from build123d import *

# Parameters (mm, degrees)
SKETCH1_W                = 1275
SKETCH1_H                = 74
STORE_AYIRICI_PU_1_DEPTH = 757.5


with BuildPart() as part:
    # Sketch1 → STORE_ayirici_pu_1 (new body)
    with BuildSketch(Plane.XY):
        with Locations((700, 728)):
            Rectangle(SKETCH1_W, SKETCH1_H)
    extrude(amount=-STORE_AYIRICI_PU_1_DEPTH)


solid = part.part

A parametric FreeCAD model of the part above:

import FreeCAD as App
import Part
import Sketcher

doc = App.newDocument("Part")
body = doc.addObject("PartDesign::Body", "Body")

# Sketch on XY plane
sketch1 = doc.addObject("Sketcher::SketchObject", "Sketch")
body.addObject(sketch1)
sketch1.AttachmentSupport = (doc.XY_Plane, [""])
sketch1.MapMode = "FlatFace"
sketch1.addGeometry([
    Part.LineSegment(App.Vector(62, 765, 0), App.Vector(62, 691, 0)),
    Part.LineSegment(App.Vector(62, 691, 0), App.Vector(1338, 691, 0)),
    Part.LineSegment(App.Vector(1338, 691, 0), App.Vector(1338, 765, 0)),
    Part.LineSegment(App.Vector(1338, 765, 0), App.Vector(62, 765, 0)),
], False)
sketch1.addConstraint([
    Sketcher.Constraint("Coincident", 0, 2, 1, 1),
    Sketcher.Constraint("Coincident", 1, 2, 2, 1),
    Sketcher.Constraint("Coincident", 2, 2, 3, 1),
    Sketcher.Constraint("Coincident", 3, 2, 0, 1),
    Sketcher.Constraint("Vertical", 0),
    Sketcher.Constraint("Horizontal", 1),
    Sketcher.Constraint("Vertical", 2),
    Sketcher.Constraint("Horizontal", 3),
    Sketcher.Constraint("DistanceX", 1, 1, 1, 2, 1275.0),
    Sketcher.Constraint("DistanceY", 0, 2, 0, 1, 74.0),
    Sketcher.Constraint("DistanceY", -1, 1, 0, 2, 691.0),
    Sketcher.Constraint("DistanceX", -1, 1, 0, 2, 62.5),
])
pad1 = doc.addObject("PartDesign::Pad", "Pad")
body.addObject(pad1)
pad1.Profile = sketch1
pad1.Length = 757.5
pad1.Reversed = True

doc.recompute()
